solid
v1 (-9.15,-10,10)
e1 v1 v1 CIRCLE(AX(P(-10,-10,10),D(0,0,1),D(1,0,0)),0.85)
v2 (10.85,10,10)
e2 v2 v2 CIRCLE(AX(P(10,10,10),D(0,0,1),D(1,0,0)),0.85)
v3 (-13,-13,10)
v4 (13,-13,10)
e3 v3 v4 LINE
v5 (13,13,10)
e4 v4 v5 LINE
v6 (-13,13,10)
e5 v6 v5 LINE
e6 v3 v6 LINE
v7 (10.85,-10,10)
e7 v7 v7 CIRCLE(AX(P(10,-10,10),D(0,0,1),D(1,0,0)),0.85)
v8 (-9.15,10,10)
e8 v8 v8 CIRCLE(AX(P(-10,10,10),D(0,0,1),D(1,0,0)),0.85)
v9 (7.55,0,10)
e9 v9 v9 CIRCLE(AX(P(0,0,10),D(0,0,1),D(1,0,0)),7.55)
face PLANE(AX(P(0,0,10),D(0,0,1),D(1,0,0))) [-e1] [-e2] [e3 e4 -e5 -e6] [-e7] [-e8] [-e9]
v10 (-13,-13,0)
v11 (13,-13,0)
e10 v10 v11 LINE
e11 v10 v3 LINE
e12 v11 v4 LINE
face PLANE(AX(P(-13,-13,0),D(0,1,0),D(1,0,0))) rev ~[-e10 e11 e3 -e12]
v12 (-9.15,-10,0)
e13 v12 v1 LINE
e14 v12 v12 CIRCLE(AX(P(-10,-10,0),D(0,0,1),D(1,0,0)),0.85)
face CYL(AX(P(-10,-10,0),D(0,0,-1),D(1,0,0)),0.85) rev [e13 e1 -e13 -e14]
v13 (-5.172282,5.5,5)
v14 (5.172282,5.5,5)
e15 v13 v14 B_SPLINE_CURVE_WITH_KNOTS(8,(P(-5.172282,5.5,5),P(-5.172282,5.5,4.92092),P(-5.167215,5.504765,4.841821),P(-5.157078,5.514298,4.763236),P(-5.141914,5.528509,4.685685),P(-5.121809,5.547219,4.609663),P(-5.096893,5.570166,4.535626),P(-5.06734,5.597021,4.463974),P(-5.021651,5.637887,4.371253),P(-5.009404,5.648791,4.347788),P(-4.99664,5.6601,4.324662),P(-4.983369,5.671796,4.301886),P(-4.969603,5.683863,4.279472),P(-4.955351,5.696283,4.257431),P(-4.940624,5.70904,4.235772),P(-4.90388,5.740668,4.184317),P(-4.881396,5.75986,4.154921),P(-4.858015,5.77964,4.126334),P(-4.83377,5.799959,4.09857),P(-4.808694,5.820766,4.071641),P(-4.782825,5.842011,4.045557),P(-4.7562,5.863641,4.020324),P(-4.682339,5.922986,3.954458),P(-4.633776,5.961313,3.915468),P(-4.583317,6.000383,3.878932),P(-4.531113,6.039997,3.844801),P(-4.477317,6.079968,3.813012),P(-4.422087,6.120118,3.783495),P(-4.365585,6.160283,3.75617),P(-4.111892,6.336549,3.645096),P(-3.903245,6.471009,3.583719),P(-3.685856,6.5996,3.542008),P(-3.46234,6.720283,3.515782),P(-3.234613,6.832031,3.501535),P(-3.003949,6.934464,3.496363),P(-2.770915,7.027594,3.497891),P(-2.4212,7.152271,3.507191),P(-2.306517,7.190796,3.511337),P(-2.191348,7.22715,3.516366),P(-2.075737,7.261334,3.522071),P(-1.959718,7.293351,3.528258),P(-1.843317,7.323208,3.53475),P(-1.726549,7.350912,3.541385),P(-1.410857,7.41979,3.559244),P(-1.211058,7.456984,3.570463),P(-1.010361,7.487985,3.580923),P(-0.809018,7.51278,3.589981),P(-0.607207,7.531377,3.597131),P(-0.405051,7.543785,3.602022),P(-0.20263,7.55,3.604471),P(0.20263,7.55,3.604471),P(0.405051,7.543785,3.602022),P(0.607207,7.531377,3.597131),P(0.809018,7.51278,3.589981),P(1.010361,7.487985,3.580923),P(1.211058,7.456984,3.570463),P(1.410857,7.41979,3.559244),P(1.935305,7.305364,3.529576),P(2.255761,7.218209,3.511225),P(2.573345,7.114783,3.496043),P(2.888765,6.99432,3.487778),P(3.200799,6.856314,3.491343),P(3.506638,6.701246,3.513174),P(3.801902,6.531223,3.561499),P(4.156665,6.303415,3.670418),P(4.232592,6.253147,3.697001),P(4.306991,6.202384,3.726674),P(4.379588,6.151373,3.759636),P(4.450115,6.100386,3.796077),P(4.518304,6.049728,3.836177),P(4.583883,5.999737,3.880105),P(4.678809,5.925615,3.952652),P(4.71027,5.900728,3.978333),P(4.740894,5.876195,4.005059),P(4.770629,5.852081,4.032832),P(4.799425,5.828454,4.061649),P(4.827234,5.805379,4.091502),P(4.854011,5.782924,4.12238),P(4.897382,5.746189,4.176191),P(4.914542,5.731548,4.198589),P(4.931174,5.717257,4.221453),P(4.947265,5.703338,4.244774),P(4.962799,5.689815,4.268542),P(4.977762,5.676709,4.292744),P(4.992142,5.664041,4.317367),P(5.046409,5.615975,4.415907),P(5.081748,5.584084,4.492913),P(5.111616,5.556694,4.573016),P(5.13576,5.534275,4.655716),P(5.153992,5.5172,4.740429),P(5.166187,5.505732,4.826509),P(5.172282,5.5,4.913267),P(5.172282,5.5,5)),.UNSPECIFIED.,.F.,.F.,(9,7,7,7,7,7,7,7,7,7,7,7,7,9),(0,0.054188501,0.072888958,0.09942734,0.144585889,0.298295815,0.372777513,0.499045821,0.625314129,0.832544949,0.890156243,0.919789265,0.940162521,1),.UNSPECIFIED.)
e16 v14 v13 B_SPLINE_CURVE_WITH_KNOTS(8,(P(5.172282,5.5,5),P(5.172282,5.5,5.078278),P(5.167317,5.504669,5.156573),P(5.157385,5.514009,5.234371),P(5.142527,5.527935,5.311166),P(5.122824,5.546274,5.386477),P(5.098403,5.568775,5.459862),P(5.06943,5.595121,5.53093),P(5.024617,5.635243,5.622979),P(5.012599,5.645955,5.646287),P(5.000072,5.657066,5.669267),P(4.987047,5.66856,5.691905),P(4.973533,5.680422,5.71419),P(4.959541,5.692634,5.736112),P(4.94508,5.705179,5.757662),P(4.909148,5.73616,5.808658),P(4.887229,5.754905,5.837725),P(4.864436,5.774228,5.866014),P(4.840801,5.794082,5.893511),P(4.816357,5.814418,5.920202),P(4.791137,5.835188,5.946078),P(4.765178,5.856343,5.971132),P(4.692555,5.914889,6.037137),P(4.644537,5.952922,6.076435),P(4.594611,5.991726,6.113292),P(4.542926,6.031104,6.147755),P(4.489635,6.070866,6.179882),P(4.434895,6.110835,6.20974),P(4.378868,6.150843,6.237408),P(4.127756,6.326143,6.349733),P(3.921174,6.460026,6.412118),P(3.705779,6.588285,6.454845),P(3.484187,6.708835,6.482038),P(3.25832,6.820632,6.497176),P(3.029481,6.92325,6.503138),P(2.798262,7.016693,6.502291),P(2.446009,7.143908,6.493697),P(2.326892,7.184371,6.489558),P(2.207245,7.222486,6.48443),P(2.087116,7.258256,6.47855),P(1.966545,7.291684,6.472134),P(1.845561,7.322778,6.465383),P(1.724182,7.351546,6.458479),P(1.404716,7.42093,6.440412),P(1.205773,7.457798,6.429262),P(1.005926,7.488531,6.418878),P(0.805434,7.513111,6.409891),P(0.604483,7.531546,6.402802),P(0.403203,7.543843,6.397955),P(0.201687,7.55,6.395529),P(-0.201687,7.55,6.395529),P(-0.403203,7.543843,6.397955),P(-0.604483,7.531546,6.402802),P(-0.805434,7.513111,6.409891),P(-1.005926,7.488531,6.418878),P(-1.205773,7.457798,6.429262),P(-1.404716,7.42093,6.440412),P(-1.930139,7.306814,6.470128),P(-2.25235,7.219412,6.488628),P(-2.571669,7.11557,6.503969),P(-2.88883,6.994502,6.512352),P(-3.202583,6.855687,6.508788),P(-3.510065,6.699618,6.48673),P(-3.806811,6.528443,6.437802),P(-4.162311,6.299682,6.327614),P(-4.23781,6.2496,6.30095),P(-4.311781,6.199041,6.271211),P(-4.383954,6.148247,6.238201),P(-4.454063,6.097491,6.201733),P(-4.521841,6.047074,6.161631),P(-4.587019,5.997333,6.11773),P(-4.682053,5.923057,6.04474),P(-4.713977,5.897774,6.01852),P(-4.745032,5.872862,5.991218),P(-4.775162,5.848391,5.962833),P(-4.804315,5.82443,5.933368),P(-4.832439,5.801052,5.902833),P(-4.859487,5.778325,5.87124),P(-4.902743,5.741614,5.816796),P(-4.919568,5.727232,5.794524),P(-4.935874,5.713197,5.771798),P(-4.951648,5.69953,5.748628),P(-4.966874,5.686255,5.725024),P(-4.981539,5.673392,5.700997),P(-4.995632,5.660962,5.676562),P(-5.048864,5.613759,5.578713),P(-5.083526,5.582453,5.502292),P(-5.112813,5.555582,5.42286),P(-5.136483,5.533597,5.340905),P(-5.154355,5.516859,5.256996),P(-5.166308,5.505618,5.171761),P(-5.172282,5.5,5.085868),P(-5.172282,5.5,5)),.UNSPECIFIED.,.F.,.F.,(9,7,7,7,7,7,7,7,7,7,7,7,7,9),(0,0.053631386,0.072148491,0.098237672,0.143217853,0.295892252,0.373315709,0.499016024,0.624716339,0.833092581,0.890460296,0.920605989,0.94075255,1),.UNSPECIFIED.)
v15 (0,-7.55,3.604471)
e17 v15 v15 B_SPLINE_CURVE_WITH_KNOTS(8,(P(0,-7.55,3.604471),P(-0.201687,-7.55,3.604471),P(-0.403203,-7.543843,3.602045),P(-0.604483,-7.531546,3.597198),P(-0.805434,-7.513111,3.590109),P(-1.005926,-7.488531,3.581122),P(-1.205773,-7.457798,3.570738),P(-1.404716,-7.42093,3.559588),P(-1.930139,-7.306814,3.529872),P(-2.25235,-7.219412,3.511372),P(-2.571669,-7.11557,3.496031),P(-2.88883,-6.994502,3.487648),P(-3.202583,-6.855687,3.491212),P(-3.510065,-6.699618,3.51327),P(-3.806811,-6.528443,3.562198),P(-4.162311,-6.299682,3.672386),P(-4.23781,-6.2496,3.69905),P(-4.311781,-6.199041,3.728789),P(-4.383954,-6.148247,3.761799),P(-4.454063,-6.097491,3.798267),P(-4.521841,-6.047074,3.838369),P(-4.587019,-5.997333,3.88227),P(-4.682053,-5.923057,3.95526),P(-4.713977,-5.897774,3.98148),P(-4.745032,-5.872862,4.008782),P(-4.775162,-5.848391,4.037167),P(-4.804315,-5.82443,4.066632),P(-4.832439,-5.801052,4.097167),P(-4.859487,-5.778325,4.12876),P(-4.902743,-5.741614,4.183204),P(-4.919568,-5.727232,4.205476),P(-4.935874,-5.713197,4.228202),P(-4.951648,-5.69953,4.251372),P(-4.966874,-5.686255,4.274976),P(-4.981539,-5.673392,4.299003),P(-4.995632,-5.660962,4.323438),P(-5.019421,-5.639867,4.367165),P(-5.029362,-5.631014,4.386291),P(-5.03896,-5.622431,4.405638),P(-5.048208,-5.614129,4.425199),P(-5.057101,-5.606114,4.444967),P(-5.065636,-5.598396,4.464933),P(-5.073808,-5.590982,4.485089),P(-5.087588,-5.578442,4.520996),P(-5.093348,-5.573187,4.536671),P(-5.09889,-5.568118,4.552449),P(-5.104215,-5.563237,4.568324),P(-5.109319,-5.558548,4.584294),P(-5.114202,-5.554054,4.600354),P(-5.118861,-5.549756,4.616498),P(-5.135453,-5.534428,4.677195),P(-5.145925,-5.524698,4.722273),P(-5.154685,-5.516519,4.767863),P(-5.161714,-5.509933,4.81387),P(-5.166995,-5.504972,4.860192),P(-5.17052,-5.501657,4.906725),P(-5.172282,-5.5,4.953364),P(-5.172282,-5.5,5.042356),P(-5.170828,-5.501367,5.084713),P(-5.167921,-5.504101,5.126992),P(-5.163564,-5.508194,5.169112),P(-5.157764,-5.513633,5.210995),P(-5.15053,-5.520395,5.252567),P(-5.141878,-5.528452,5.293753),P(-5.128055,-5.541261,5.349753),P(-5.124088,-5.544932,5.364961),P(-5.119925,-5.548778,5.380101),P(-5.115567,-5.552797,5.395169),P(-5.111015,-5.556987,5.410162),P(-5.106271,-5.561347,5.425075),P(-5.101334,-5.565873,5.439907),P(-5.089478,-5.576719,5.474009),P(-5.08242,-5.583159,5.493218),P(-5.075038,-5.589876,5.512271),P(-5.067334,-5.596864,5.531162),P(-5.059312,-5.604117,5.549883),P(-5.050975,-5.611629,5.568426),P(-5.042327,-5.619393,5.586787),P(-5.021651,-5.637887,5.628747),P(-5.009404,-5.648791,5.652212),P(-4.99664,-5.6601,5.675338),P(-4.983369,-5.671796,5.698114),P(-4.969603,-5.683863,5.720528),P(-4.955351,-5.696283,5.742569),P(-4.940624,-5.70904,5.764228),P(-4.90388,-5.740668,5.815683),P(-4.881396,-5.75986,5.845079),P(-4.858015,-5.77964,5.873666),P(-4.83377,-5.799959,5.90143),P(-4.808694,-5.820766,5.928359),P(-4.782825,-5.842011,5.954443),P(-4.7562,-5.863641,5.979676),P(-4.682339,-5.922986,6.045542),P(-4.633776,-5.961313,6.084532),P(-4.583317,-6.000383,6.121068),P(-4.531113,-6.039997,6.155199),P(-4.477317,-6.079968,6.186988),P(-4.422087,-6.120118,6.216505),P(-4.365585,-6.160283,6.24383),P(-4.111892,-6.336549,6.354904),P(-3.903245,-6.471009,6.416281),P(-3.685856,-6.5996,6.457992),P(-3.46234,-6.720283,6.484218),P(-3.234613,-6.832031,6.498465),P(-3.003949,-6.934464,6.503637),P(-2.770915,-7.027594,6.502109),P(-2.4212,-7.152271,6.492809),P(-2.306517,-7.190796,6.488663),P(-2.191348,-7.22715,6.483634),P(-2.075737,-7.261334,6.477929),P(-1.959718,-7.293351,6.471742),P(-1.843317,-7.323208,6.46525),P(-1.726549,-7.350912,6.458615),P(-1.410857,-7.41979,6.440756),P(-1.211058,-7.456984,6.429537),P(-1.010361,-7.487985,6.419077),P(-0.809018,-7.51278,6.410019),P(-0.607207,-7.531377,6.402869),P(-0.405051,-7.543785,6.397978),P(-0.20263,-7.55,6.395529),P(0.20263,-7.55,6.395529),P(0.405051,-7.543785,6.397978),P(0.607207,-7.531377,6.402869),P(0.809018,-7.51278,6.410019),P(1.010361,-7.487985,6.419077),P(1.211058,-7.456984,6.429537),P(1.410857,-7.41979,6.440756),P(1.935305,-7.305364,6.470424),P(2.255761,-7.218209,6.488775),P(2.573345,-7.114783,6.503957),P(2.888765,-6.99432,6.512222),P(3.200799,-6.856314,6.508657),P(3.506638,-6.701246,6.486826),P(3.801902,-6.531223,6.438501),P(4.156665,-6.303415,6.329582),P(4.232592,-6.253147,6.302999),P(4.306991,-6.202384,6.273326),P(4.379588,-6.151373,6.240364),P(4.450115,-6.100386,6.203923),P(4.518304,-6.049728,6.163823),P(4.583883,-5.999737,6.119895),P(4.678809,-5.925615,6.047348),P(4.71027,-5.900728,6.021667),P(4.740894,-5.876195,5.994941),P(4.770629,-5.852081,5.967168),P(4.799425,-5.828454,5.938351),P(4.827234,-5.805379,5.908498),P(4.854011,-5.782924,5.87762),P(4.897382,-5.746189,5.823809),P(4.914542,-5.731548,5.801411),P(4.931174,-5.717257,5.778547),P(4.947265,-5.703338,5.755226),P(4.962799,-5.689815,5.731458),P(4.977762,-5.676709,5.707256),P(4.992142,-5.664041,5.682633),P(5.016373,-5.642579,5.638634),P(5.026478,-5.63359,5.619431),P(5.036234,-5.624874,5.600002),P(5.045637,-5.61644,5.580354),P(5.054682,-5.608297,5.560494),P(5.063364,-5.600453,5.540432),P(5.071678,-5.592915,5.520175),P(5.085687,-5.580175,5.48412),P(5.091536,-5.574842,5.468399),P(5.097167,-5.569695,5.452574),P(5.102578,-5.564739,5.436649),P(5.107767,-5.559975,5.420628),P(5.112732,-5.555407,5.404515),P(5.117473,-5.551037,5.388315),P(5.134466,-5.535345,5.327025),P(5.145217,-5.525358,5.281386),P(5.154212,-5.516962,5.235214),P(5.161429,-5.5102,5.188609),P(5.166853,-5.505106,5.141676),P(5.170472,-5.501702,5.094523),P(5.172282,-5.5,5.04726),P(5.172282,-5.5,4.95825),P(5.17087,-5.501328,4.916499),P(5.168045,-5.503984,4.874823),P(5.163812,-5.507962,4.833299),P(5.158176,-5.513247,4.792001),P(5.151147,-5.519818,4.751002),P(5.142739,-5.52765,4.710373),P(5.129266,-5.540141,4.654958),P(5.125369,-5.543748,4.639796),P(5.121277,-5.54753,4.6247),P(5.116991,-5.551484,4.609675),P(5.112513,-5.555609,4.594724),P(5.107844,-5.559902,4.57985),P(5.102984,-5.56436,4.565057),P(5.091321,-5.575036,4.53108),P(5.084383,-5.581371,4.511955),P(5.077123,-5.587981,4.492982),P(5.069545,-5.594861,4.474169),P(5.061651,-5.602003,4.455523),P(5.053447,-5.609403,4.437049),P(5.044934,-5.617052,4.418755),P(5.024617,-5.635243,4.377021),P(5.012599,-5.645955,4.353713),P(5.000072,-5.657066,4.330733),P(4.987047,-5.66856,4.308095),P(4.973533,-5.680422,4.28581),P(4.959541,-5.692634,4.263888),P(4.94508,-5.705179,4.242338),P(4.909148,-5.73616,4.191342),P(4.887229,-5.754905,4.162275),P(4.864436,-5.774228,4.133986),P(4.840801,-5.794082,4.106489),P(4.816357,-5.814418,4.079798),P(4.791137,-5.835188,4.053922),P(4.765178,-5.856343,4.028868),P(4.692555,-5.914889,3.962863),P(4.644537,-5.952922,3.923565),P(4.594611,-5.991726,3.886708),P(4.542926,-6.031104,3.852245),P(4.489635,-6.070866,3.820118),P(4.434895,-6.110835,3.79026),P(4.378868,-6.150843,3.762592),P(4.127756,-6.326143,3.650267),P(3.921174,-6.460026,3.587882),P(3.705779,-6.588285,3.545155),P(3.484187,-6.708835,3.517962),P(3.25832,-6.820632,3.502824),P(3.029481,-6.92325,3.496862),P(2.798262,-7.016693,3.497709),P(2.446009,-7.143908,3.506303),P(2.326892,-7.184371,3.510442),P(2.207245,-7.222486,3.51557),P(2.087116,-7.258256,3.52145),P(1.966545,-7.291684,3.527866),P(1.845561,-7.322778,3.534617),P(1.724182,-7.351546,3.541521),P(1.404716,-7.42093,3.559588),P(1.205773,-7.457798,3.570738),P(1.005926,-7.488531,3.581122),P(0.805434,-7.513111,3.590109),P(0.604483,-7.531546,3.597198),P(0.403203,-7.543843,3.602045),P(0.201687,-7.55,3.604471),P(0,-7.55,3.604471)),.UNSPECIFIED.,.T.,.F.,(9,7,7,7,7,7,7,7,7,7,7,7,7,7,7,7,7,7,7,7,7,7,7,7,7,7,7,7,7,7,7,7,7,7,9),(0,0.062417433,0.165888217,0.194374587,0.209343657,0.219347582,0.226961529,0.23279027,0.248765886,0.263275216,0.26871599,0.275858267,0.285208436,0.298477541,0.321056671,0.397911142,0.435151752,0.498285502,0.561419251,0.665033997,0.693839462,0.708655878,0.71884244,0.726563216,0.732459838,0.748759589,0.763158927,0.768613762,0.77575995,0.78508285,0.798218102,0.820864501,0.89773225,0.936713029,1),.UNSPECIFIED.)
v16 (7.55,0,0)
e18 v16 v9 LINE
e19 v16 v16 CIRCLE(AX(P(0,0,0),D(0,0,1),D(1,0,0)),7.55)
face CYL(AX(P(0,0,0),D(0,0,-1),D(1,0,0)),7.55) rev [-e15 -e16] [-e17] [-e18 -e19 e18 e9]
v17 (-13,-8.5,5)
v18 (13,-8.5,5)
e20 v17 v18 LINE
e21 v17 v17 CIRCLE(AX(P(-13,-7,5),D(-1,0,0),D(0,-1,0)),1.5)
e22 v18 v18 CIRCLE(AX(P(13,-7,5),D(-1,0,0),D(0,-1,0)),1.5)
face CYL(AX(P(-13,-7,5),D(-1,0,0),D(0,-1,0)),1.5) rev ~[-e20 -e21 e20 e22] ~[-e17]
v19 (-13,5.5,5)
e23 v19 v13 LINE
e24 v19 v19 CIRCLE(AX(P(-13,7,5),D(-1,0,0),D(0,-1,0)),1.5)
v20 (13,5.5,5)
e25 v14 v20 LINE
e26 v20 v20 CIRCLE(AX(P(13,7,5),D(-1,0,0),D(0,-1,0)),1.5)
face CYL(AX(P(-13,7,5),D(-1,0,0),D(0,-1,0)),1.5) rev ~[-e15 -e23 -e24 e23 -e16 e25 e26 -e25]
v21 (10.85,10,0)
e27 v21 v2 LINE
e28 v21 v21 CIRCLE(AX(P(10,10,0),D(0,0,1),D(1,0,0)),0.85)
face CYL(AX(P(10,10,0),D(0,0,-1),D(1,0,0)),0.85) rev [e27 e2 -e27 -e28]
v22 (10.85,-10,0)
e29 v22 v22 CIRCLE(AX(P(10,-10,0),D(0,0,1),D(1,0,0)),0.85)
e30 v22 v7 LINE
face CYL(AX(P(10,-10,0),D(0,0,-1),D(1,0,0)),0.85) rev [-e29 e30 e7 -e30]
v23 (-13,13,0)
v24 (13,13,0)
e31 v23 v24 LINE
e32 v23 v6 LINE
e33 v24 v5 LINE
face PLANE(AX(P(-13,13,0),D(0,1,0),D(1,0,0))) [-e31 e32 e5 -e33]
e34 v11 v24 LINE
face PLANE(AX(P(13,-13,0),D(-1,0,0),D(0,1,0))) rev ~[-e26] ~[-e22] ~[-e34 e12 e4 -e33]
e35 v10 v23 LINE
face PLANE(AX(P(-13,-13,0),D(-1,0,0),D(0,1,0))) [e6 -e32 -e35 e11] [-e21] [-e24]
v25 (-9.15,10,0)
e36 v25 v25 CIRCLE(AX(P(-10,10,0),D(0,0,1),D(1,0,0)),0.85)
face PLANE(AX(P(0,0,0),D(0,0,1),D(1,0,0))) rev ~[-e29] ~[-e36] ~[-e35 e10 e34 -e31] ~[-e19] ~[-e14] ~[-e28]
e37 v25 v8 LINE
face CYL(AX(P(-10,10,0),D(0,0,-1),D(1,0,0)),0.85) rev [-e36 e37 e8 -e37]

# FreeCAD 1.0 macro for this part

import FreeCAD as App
import Part
import Sketcher

V = App.Vector
Q = App.Units.Quantity


def add_polygon(sketch, points):
    """Adds a closed chain of lines whose ends are joined by coincident constraints."""
    first, n = sketch.GeometryCount, len(points)
    for a, b in zip(points, points[1:] + points[:1]):
        sketch.addGeometry(Part.LineSegment(App.Vector(*a, 0), App.Vector(*b, 0)), False)
    for i in range(n):
        sketch.addConstraint(Sketcher.Constraint("Coincident", first + i, 2, first + (i + 1) % n, 1))

doc = App.newDocument("Part")
body = doc.addObject("PartDesign::Body", "Body")

sketch1 = body.newObject("Sketcher::SketchObject", "Sketch")
sketch1.AttachmentSupport = (doc.getObject("XY_Plane"), [""])
sketch1.MapMode = "FlatFace"
add_polygon(sketch1, [(-13, 13), (-13, -13), (13, -13), (13, 13)])
sketch1.addGeometry(Part.Circle(V(-10, -10, 0), V(0, 0, 1), 0.85), False)
sketch1.addGeometry(Part.Circle(V(10, -10, 0), V(0, 0, 1), 0.85), False)
sketch1.addGeometry(Part.Circle(V(-10, 10, 0), V(0, 0, 1), 0.85), False)
sketch1.addGeometry(Part.Circle(V(0, 0, 0), V(0, 0, 1), 7.55), False)
sketch1.addGeometry(Part.Circle(V(10, 10, 0), V(0, 0, 1), 0.85), False)
sketch1.addConstraint([
    Sketcher.Constraint("Vertical", 0),
    Sketcher.Constraint("Horizontal", 1),
    Sketcher.Constraint("Vertical", 2),
    Sketcher.Constraint("Horizontal", 3),
    Sketcher.Constraint("Coincident", 7, 3, -1, 1),
    Sketcher.Constraint("Equal", 4, 5),
    Sketcher.Constraint("Equal", 5, 6),
    Sketcher.Constraint("Equal", 6, 8),
    Sketcher.Constraint("Symmetric", 5, 3, 6, 3, -1, 1),
    Sketcher.Constraint("Symmetric", 4, 3, 8, 3, -1, 1),
    Sketcher.Constraint("Symmetric", 0, 2, 2, 2, -1, 1),
    Sketcher.Constraint("Symmetric", 4, 3, 5, 3, -2),
    Sketcher.Constraint("Equal", 3, 0),
    Sketcher.Constraint("Diameter", 4, Q("1.7 mm")),
    Sketcher.Constraint("Diameter", 7, Q("15.1 mm")),
    Sketcher.Constraint("DistanceX", 1, 1, 1, 2, Q("26 mm")),
    Sketcher.Constraint("DistanceX", 4, 3, -1, 1, Q("10 mm")),
    Sketcher.Constraint("DistanceY", 4, 3, -1, 1, Q("10 mm")),
])
pad1 = body.newObject("PartDesign::Pad", "Pad")
pad1.Profile = sketch1
pad1.Length = 10

sketch2 = body.newObject("Sketcher::SketchObject", "Sketch001")
sketch2.AttachmentSupport = (doc.getObject("YZ_Plane"), [""])
sketch2.MapMode = "FlatFace"
sketch2.AttachmentOffset = App.Placement(V(0, 0, -13), App.Rotation())
sketch2.addGeometry([
    Part.Circle(V(7, 5, 0), V(0, 0, 1), 1.5),
    Part.Circle(V(-7, 5, 0), V(0, 0, 1), 1.5),
], False)
sketch2.addConstraint([
    Sketcher.Constraint("Equal", 0, 1),
    Sketcher.Constraint("Symmetric", 0, 3, 1, 3, -2),
    Sketcher.Constraint("Diameter", 0, Q("3 mm")),
    Sketcher.Constraint("DistanceX", -1, 1, 0, 3, Q("7 mm")),
    Sketcher.Constraint("DistanceY", -1, 1, 0, 3, Q("5 mm")),
])
pocket1 = body.newObject("PartDesign::Pocket", "Pocket")
pocket1.Profile = sketch2
pocket1.Type = "ThroughAll"
pocket1.Reversed = True

doc.recompute()
